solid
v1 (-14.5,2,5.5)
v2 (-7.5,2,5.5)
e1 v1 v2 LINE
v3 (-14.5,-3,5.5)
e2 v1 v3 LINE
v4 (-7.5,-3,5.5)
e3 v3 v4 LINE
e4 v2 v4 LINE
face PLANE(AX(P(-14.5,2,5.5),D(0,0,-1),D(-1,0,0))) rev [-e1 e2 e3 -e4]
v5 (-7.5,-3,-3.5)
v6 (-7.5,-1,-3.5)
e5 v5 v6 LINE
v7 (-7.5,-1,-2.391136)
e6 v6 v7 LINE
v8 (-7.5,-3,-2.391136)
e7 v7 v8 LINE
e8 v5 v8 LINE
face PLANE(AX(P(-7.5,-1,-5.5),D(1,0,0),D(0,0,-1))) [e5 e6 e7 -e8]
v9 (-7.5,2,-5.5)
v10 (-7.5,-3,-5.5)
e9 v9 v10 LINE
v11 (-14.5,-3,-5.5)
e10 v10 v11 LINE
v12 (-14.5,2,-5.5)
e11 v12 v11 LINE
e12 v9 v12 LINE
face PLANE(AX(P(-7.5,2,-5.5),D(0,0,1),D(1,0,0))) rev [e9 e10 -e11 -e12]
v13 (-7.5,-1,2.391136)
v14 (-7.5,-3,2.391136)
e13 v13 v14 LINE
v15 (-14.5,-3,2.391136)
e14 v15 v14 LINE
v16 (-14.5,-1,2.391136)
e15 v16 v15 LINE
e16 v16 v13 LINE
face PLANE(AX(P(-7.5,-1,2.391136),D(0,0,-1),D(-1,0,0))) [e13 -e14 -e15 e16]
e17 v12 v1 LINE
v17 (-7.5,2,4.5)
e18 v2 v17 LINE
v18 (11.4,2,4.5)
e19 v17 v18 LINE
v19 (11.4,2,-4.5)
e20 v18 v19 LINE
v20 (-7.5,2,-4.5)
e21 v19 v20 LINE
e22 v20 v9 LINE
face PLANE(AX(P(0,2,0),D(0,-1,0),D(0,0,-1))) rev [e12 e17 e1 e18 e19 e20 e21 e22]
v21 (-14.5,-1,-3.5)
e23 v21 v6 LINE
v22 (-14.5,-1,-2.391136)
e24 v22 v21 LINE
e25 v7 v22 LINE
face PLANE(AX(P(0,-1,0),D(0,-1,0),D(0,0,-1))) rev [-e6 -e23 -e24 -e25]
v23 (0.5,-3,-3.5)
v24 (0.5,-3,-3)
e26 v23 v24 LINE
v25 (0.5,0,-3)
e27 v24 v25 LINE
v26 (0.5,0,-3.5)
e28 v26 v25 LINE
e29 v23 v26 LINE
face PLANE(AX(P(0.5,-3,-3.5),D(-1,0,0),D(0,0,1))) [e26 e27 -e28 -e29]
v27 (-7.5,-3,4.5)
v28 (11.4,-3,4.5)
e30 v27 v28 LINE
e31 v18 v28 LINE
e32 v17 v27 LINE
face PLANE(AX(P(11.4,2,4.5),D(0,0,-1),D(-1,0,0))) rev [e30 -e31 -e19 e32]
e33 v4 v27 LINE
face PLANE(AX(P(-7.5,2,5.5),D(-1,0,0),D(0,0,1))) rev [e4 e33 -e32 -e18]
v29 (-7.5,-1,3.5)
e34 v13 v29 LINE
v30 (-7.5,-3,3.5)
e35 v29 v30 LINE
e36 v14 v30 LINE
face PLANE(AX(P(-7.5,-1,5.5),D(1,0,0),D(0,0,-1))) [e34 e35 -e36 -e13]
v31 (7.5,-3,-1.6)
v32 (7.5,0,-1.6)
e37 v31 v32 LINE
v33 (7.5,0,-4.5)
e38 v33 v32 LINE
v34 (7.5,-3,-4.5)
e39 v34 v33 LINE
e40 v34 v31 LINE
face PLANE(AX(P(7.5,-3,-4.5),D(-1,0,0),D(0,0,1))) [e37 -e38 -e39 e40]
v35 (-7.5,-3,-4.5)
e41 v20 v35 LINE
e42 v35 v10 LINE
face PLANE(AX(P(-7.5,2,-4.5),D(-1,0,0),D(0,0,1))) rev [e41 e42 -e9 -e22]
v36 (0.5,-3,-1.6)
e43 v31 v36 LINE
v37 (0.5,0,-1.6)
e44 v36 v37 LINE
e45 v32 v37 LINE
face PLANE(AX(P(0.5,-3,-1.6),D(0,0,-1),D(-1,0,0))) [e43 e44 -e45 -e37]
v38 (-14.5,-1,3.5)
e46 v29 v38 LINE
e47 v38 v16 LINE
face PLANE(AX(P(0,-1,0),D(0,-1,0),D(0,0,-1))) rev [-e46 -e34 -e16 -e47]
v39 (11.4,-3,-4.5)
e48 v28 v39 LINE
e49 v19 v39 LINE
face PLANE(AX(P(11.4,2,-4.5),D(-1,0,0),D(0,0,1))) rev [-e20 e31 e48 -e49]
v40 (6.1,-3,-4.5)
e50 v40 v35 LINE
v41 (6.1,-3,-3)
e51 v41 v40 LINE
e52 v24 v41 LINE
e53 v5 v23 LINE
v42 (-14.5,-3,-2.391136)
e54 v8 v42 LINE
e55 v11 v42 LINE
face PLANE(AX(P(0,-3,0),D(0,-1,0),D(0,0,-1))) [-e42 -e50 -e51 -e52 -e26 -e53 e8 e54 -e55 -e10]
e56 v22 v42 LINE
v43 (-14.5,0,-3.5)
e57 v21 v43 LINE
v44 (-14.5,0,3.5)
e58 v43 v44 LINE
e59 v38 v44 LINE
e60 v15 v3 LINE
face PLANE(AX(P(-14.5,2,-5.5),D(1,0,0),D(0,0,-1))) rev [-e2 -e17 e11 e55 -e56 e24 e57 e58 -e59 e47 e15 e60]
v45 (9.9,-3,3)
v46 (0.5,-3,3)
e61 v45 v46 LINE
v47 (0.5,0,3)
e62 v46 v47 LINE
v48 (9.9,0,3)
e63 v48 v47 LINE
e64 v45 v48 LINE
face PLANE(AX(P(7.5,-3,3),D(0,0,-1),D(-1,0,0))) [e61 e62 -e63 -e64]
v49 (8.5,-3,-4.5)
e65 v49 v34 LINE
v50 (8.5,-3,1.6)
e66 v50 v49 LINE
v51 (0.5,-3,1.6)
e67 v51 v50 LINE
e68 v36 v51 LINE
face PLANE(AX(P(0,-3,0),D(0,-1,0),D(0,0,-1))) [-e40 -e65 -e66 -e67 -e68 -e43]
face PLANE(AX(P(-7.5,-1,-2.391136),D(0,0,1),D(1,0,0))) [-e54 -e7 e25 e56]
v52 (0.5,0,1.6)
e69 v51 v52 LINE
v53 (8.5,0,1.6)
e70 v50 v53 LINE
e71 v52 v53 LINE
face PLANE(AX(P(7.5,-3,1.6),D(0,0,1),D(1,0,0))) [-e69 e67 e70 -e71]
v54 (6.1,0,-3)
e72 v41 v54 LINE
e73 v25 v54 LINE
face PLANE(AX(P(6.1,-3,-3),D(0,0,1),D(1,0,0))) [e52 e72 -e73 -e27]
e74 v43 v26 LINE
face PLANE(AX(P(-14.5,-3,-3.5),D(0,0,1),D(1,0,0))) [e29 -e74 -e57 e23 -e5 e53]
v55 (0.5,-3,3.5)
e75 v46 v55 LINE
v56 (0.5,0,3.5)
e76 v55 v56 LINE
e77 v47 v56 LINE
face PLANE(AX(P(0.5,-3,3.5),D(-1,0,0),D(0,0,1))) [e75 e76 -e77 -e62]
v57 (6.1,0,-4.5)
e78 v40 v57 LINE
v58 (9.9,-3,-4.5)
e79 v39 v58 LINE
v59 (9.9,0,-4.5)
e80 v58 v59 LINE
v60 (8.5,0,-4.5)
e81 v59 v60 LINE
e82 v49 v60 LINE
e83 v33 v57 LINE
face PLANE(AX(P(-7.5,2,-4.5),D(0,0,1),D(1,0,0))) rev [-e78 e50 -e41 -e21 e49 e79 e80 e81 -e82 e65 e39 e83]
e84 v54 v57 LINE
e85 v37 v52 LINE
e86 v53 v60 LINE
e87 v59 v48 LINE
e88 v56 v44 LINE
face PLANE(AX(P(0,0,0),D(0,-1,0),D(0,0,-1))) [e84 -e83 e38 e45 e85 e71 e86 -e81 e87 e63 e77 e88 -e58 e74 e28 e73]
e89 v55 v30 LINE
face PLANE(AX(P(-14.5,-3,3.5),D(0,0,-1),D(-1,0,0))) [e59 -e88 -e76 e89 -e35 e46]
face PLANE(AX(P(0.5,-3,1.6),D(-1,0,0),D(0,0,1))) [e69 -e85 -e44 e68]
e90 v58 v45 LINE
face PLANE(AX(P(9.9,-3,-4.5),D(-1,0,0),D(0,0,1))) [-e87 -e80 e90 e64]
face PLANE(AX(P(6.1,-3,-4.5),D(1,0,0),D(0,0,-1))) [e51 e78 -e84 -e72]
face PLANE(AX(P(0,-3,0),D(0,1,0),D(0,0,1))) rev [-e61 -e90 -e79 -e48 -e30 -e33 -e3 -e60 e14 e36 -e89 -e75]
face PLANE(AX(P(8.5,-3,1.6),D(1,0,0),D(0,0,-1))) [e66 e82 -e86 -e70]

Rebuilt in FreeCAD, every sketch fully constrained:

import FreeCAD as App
import Part
import Sketcher
from FreeCAD import Vector
Q = App.Units.Quantity


def add_polygon(sketch, points):
    """Adds a closed chain of lines whose ends are joined by coincident constraints."""
    first, n = sketch.GeometryCount, len(points)
    for a, b in zip(points, points[1:] + points[:1]):
        sketch.addGeometry(Part.LineSegment(App.Vector(*a, 0), App.Vector(*b, 0)), False)
    for i in range(n):
        sketch.addConstraint(Sketcher.Constraint("Coincident", first + i, 2, first + (i + 1) % n, 1))

doc = App.newDocument("Part")
params = doc.addObject("Spreadsheet::Sheet", "Params")
for row, (alias, value) in enumerate([
    ("sketch1_width", "7 mm"),
    ("sketch1_height", "9 mm"),
    ("sketch1_height2", "1 mm"),
    ("sketch1_width2", "18.9 mm"),
    ("pad1_length", "2 mm"),
    ("sketch2_width", "7 mm"),
    ("sketch2_width2", "15 mm"),
    ("sketch2_width3", "8 mm"),
    ("sketch2_height", "2 mm"),
    ("sketch2_height2", "9 mm"),
    ("pad2_length", "3 mm"),
    ("sketch3_width", "7 mm"),
    ("pad3_length", "2 mm"),
], start=1):
    params.set(f"A{row}", alias)
    params.set(f"B{row}", "=" + value)
    params.setAlias(f"B{row}", alias)

body = doc.addObject("PartDesign::Body", "Body")

# Sketch on XZ plane
sketch1 = body.newObject("Sketcher::SketchObject", "Sketch")
sketch1.AttachmentSupport = (doc.getObject("XZ_Plane"), [""])
sketch1.MapMode = "FlatFace"
add_polygon(sketch1, [(-7.5, 4.5), (11.4, 4.5), (11.4, -4.5), (-7.5, -4.5), (-7.5, -5.5), (-14.5, -5.5), (-14.5, 5.5), (-7.5, 5.5)])  # lines 0-7
sketch1.addConstraint([
    Sketcher.Constraint("Horizontal", 0),
    Sketcher.Constraint("Vertical", 1),
    Sketcher.Constraint("Horizontal", 2),
    Sketcher.Constraint("Vertical", 3),
    Sketcher.Constraint("Horizontal", 4),
    Sketcher.Constraint("Vertical", 5),
    Sketcher.Constraint("Horizontal", 6),
    Sketcher.Constraint("Vertical", 7),
    Sketcher.Constraint("Symmetric", 3, 2, 6, 2, -1),
    Sketcher.Constraint("Equal", 3, 7),
    Sketcher.Constraint("DistanceX", 4, 2, 4, 1, Q("7 mm")),
    Sketcher.Constraint("DistanceY", 1, 2, 1, 1, Q("9 mm")),
    Sketcher.Constraint("DistanceY", 3, 2, 3, 1, Q("1 mm")),
    Sketcher.Constraint("DistanceX", 0, 1, 0, 2, Q("18.9 mm")),
    Sketcher.Constraint("DistanceX", -1, 1, 0, 2, Q("11.4 mm")),
])
sketch1.setExpression("Constraints[18]", "Params.sketch1_width")
sketch1.setExpression("Constraints[19]", "Params.sketch1_height")
sketch1.setExpression("Constraints[20]", "Params.sketch1_height2")
sketch1.setExpression("Constraints[21]", "Params.sketch1_width2")
pad1 = body.newObject("PartDesign::Pad", "Pad")
pad1.Profile = sketch1
pad1.setExpression("Length", "Params.pad1_length")
pad1.Reversed = True

# Sketch on XZ plane
sketch2 = body.newObject("Sketcher::SketchObject", "Sketch001")
sketch2.AttachmentSupport = (doc.getObject("XZ_Plane"), [""])
sketch2.MapMode = "FlatFace"
add_polygon(sketch2, [(6.1, -4.5), (-7.5, -4.5), (-7.5, -5.5), (-14.5, -5.5), (-14.5, -3.5), (0.5, -3.5), (0.5, -3), (6.1, -3)])  # lines 0-7
add_polygon(sketch2, [(-7.5, 5.5), (-7.5, 4.5), (11.4, 4.5), (11.4, -4.5), (9.9, -4.5), (9.9, 3), (0.5, 3), (0.5, 3.5), (-14.5, 3.5), (-14.5, 5.5)])  # lines 8-17
add_polygon(sketch2, [(0.5, -1.6), (0.5, 1.6), (8.5, 1.6), (8.5, -4.5), (7.5, -4.5), (7.5, -1.6)])  # lines 18-23
sketch2.addConstraint([
    Sketcher.Constraint("Horizontal", 0),
    Sketcher.Constraint("Vertical", 1),
    Sketcher.Constraint("Horizontal", 2),
    Sketcher.Constraint("Vertical", 3),
    Sketcher.Constraint("Horizontal", 4),
    Sketcher.Constraint("Vertical", 5),
    Sketcher.Constraint("Horizontal", 6),
    Sketcher.Constraint("Vertical", 7),
    Sketcher.Constraint("Vertical", 8),
    Sketcher.Constraint("Horizontal", 9),
    Sketcher.Constraint("Vertical", 10),
    Sketcher.Constraint("Horizontal", 11),
    Sketcher.Constraint("Vertical", 12),
    Sketcher.Constraint("Horizontal", 13),
    Sketcher.Constraint("Vertical", 14),
    Sketcher.Constraint("Horizontal", 15),
    Sketcher.Constraint("Vertical", 16),
    Sketcher.Constraint("Horizontal", 17),
    Sketcher.Constraint("Vertical", 18),
    Sketcher.Constraint("Horizontal", 19),
    Sketcher.Constraint("Vertical", 20),
    Sketcher.Constraint("Horizontal", 21),
    Sketcher.Constraint("Vertical", 22),
    Sketcher.Constraint("Horizontal", 23),
    Sketcher.Constraint("Symmetric", 8, 2, 21, 2, -1, 1),
    Sketcher.Constraint("Symmetric", 0, 2, 21, 2, -2),
    Sketcher.Constraint("Symmetric", 5, 2, 13, 2, -1),
    Sketcher.Constraint("Symmetric", 3, 2, 15, 2, -1),
    Sketcher.Constraint("Horizontal", 7, 2, 10, 2),
    Sketcher.Constraint("Vertical", 14, 2, 18, 2),
    Sketcher.Constraint("Equal", 17, 23),
    Sketcher.Constraint("Equal", 21, 1),
    Sketcher.Constraint("Equal", 11, 7),
    Sketcher.Constraint("Equal", 1, 8),
    Sketcher.Constraint("DistanceX", 2, 2, 2, 1, Q("7 mm")),
    Sketcher.Constraint("DistanceX", 4, 1, 4, 2, Q("15 mm")),
    Sketcher.Constraint("DistanceX", 19, 1, 19, 2, Q("8 mm")),
    Sketcher.Constraint("DistanceY", 3, 1, 3, 2, Q("2 mm")),
    Sketcher.Constraint("DistanceY", 10, 2, 10, 1, Q("9 mm")),
    Sketcher.Constraint("DistanceX", 0, 2, 0, 1, Q("13.6 mm")),
    Sketcher.Constraint("DistanceX", 9, 1, 9, 2, Q("18.9 mm")),
    Sketcher.Constraint("DistanceX", 11, 2, 11, 1, Q("1.5 mm")),
    Sketcher.Constraint("DistanceY", 18, 1, 18, 2, Q("3.2 mm")),
    Sketcher.Constraint("DistanceY", 20, 2, 20, 1, Q("6.1 mm")),
])
sketch2.setExpression("Constraints[58]", "Params.sketch2_width")
sketch2.setExpression("Constraints[59]", "Params.sketch2_width2")
sketch2.setExpression("Constraints[60]", "Params.sketch2_width3")
sketch2.setExpression("Constraints[61]", "Params.sketch2_height")
sketch2.setExpression("Constraints[62]", "Params.sketch2_height2")
pad2 = body.newObject("PartDesign::Pad", "Pad001")
pad2.Profile = sketch2
pad2.setExpression("Length", "Params.pad2_length")

# Sketch on XZ plane
sketch3 = body.newObject("Sketcher::SketchObject", "Sketch002")
sketch3.AttachmentSupport = (doc.getObject("XZ_Plane"), [""])
sketch3.MapMode = "FlatFace"
sketch3.AttachmentOffset = App.Placement(Vector(0, 0, 3), App.Rotation())
add_polygon(sketch3, [(-14.5, 5.5), (-14.5, 2.4), (-7.5, 2.4), (-7.5, 5.5)])  # lines 0-3
add_polygon(sketch3, [(-14.5, -2.4), (-14.5, -5.5), (-7.5, -5.5), (-7.5, -2.4)])  # lines 4-7
sketch3.addConstraint([
    Sketcher.Constraint("Vertical", 0),
    Sketcher.Constraint("Horizontal", 1),
    Sketcher.Constraint("Vertical", 2),
    Sketcher.Constraint("Horizontal", 3),
    Sketcher.Constraint("Vertical", 4),
    Sketcher.Constraint("Horizontal", 5),
    Sketcher.Constraint("Vertical", 6),
    Sketcher.Constraint("Horizontal", 7),
    Sketcher.Constraint("Symmetric", 3, 2, 4, 2, -1),
    Sketcher.Constraint("Symmetric", 1, 2, 6, 2, -1),
    Sketcher.Constraint("DistanceX", 1, 1, 1, 2, Q("7 mm")),
    Sketcher.Constraint("DistanceY", 4, 2, 3, 2, Q("11 mm")),
    Sketcher.Constraint("DistanceX", 0, 2, -1, 1, Q("14.5 mm")),
    Sketcher.Constraint("DistanceY", 0, 2, 0, 1, Q("3.108864 mm")),
])
sketch3.setExpression("Constraints[18]", "Params.sketch3_width")
pad3 = body.newObject("PartDesign::Pad", "Pad002")
pad3.Profile = sketch3
pad3.setExpression("Length", "Params.pad3_length")
pad3.Reversed = True

doc.recompute()
